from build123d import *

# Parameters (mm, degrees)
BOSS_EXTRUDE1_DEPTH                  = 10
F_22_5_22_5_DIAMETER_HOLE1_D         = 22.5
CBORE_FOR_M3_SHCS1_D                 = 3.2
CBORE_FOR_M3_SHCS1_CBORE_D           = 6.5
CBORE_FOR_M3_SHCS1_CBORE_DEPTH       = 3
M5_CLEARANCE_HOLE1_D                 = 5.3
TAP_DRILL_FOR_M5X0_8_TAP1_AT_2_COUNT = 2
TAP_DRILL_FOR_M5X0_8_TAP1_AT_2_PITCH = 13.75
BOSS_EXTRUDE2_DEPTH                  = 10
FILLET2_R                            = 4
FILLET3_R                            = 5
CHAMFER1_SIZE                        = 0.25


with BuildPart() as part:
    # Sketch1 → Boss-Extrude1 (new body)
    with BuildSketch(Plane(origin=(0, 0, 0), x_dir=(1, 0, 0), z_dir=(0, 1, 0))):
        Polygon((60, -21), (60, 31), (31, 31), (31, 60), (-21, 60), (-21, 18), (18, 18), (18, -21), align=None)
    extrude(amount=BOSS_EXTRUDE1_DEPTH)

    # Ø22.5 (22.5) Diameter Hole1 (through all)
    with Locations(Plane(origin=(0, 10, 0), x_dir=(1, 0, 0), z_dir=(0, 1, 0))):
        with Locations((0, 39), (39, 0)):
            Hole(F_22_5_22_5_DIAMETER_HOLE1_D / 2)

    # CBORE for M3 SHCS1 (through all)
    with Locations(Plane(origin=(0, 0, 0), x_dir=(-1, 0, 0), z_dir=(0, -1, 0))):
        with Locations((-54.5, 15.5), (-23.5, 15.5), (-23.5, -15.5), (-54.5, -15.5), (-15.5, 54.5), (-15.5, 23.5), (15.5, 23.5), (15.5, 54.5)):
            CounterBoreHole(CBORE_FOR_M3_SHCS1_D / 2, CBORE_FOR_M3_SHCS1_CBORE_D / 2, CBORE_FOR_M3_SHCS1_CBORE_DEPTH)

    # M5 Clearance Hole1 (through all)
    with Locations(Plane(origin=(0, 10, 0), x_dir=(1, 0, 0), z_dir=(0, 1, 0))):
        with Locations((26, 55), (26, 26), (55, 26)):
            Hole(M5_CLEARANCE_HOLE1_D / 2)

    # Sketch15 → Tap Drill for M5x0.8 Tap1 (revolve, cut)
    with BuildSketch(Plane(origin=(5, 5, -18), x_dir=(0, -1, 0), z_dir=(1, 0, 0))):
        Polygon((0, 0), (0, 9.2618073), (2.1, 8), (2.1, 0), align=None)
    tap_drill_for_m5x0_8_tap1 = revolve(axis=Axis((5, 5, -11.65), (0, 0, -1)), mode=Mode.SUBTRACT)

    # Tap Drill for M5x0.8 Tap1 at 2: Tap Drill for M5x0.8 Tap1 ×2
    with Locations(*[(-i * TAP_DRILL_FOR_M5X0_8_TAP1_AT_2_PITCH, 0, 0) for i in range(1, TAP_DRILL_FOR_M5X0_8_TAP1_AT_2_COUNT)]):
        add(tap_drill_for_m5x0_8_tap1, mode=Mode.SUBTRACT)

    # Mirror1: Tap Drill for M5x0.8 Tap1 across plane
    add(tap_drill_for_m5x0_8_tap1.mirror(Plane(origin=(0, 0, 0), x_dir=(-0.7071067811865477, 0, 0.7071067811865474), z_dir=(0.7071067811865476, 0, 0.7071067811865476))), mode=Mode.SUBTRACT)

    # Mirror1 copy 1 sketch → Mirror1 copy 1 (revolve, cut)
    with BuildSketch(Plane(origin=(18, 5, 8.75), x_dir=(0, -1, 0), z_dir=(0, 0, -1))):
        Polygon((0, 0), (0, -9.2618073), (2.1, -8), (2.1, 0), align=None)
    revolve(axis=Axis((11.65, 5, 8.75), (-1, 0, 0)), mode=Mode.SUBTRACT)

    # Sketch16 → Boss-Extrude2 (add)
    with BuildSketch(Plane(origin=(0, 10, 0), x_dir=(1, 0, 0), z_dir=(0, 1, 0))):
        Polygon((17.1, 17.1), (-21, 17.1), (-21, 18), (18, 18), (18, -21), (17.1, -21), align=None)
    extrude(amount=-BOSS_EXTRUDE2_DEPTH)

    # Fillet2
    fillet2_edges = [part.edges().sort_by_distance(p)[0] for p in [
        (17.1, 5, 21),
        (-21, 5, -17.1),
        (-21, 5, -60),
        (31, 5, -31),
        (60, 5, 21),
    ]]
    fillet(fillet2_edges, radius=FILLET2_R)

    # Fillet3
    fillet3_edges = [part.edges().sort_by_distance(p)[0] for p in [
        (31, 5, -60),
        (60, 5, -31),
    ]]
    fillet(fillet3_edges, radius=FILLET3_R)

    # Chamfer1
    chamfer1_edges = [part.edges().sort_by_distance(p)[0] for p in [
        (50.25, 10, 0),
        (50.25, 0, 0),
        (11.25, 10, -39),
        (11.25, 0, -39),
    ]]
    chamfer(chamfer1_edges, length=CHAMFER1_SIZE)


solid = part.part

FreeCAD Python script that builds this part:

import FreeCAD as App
import Part
import Sketcher
from FreeCAD import Vector
Q = App.Units.Quantity


def edges_at(feature, points):
    """Names of the edges that pass closest to the given points."""
    edges = feature.Shape.Edges
    near = lambda p: min(range(len(edges)), key=lambda i: edges[i].distToShape(Part.Vertex(*p))[0])
    return sorted({f"Edge{near(p) + 1}" for p in points})

doc = App.newDocument("Part")
body = doc.addObject("PartDesign::Body", "Body")

# Sketch on XZ plane
sketch1 = doc.addObject("Sketcher::SketchObject", "Sketch")
body.addObject(sketch1)
sketch1.AttachmentSupport = (doc.XZ_Plane, [""])
sketch1.MapMode = "FlatFace"
sketch1.addGeometry([
    Part.LineSegment(Vector(60, 21, 0), Vector(60, -31, 0)),  # 0
    Part.LineSegment(Vector(60, -31, 0), Vector(31, -31, 0)),  # 1
    Part.LineSegment(Vector(31, -31, 0), Vector(31, -60, 0)),  # 2
    Part.LineSegment(Vector(31, -60, 0), Vector(-21, -60, 0)),  # 3
    Part.LineSegment(Vector(-21, -60, 0), Vector(-21, -18, 0)),  # 4
    Part.LineSegment(Vector(-21, -18, 0), Vector(18, -18, 0)),  # 5
    Part.LineSegment(Vector(18, -18, 0), Vector(18, 21, 0)),  # 6
    Part.LineSegment(Vector(18, 21, 0), Vector(60, 21, 0)),  # 7
], False)
sketch1.addConstraint([
    Sketcher.Constraint("Coincident", 0, 2, 1, 1),
    Sketcher.Constraint("Coincident", 1, 2, 2, 1),
    Sketcher.Constraint("Coincident", 2, 2, 3, 1),
    Sketcher.Constraint("Coincident", 3, 2, 4, 1),
    Sketcher.Constraint("Coincident", 4, 2, 5, 1),
    Sketcher.Constraint("Coincident", 5, 2, 6, 1),
    Sketcher.Constraint("Coincident", 6, 2, 7, 1),
    Sketcher.Constraint("Coincident", 7, 2, 0, 1),
    Sketcher.Constraint("Vertical", 0),
    Sketcher.Constraint("Horizontal", 1),
    Sketcher.Constraint("Vertical", 2),
    Sketcher.Constraint("Horizontal", 3),
    Sketcher.Constraint("Vertical", 4),
    Sketcher.Constraint("Horizontal", 5),
    Sketcher.Constraint("Vertical", 6),
    Sketcher.Constraint("Horizontal", 7),
    Sketcher.Constraint("Equal", 3, 0),
    Sketcher.Constraint("Equal", 1, 2),
    Sketcher.Constraint("Equal", 7, 4),
    Sketcher.Constraint("DistanceX", 1, 2, 1, 1, 29.0),
    Sketcher.Constraint("DistanceX", 3, 2, 3, 1, 52.0),
    Sketcher.Constraint("DistanceX", 5, 1, 5, 2, 39.0),
    Sketcher.Constraint("DistanceX", -1, 1, 0, 2, 60.0),
    Sketcher.Constraint("DistanceY", 0, 2, -1, 1, 31.0),
])
pad1 = doc.addObject("PartDesign::Pad", "Pad")
body.addObject(pad1)
pad1.Profile = sketch1
pad1.Length = 10
pad1.Reversed = True

# Sketch on XZ plane
sketch2 = doc.addObject("Sketcher::SketchObject", "Sketch001")
body.addObject(sketch2)
sketch2.AttachmentSupport = (doc.XZ_Plane, [""])
sketch2.MapMode = "FlatFace"
sketch2.AttachmentOffset = App.Placement(Vector(0, 0, -10), App.Rotation())
sketch2.addGeometry([
    Part.Circle(Vector(0, -39, 0), Vector(0, 0, 1), 11),
    Part.Circle(Vector(39, 0, 0), Vector(0, 0, 1), 11),
], False)
sketch2.addConstraint([
    Sketcher.Constraint("Equal", 0, 1),
    Sketcher.Constraint("PointOnObject", 0, 3, -2),
    Sketcher.Constraint("PointOnObject", 1, 3, -1),
    Sketcher.Constraint("Diameter", 0, 22.5),
    Sketcher.Constraint("DistanceY", 0, 3, -1, 1, 39.0),
    Sketcher.Constraint("DistanceX", -1, 1, 1, 3, 39.0),
])
doc.recompute()
hole = doc.addObject("PartDesign::Hole", "Hole")
body.addObject(hole)
hole.Profile = sketch2
hole.ThreadType = "None"
hole.Diameter = 22.5
hole.DepthType = "ThroughAll"
hole.Reversed = True

# Sketch on XZ plane
sketch3 = doc.addObject("Sketcher::SketchObject", "Sketch002")
body.addObject(sketch3)
sketch3.AttachmentSupport = (doc.XZ_Plane, [""])
sketch3.MapMode = "FlatFace"
sketch3.addGeometry([
    Part.Circle(Vector(54.5, -15.5, 0), Vector(0, 0, 1), 1.6),  # 0
    Part.Circle(Vector(23.5, -15.5, 0), Vector(0, 0, 1), 1.6),  # 1
    Part.Circle(Vector(23.5, 15.5, 0), Vector(0, 0, 1), 1.6),  # 2
    Part.Circle(Vector(54.5, 15.5, 0), Vector(0, 0, 1), 1.6),  # 3
    Part.Circle(Vector(15.5, -54.5, 0), Vector(0, 0, 1), 1.6),  # 4
    Part.Circle(Vector(15.5, -23.5, 0), Vector(0, 0, 1), 1.6),  # 5
    Part.Circle(Vector(-15.5, -23.5, 0), Vector(0, 0, 1), 1.6),  # 6
    Part.Circle(Vector(-15.5, -54.5, 0), Vector(0, 0, 1), 1.6),  # 7
], False)
sketch3.addConstraint([
    Sketcher.Constraint("Equal", 0, 1),
    Sketcher.Constraint("Equal", 1, 2),
    Sketcher.Constraint("Equal", 2, 3),
    Sketcher.Constraint("Equal", 3, 4),
    Sketcher.Constraint("Equal", 4, 5),
    Sketcher.Constraint("Equal", 5, 6),
    Sketcher.Constraint("Equal", 6, 7),
    Sketcher.Constraint("Symmetric", 5, 3, 6, 3, -2),
    Sketcher.Constraint("Symmetric", 4, 3, 7, 3, -2),
    Sketcher.Constraint("Symmetric", 1, 3, 2, 3, -1),
    Sketcher.Constraint("Symmetric", 0, 3, 3, 3, -1),
    Sketcher.Constraint("Horizontal", 0, 3, 1, 3),
    Sketcher.Constraint("Vertical", 4, 3, 5, 3),
    Sketcher.Constraint("Diameter", 0, 3.2),
    Sketcher.Constraint("DistanceX", 1, 3, 0, 3, 31.0),
    Sketcher.Constraint("DistanceY", 1, 3, 2, 3, 31.0),
    Sketcher.Constraint("DistanceX", 4, 3, 1, 3, 8.0),
    Sketcher.Constraint("DistanceY", 4, 3, 1, 3, 39.0),
    Sketcher.Constraint("DistanceY", 5, 3, 1, 3, 8.0),
    Sketcher.Constraint("DistanceX", 6, 3, 5, 3, 31.0),
])
doc.recompute()
hole2 = doc.addObject("PartDesign::Hole", "Hole001")
body.addObject(hole2)
hole2.Profile = sketch3
hole2.ThreadType = "None"
hole2.Diameter = 3.2
hole2.DepthType = "ThroughAll"
hole2.HoleCutType = "Counterbore"
hole2.HoleCutDiameter = 6.5
hole2.HoleCutDepth = 3

# Sketch on XZ plane
sketch4 = doc.addObject("Sketcher::SketchObject", "Sketch003")
body.addObject(sketch4)
sketch4.AttachmentSupport = (doc.XZ_Plane, [""])
sketch4.MapMode = "FlatFace"
sketch4.AttachmentOffset = App.Placement(Vector(0, 0, -10), App.Rotation())
sketch4.addGeometry([
    Part.Circle(Vector(26, -55, 0), Vector(0, 0, 1), 2.6),
    Part.Circle(Vector(26, -26, 0), Vector(0, 0, 1), 2.6),
    Part.Circle(Vector(55, -26, 0), Vector(0, 0, 1), 2.6),
], False)
sketch4.addConstraint([
    Sketcher.Constraint("Equal", 0, 1),
    Sketcher.Constraint("Equal", 1, 2),
    Sketcher.Constraint("Horizontal", 1, 3, 2, 3),
    Sketcher.Constraint("Vertical", 0, 3, 1, 3),
    Sketcher.Constraint("Diameter", 0, 5.3),
    Sketcher.Constraint("DistanceX", -1, 1, 0, 3, 26.0),
    Sketcher.Constraint("DistanceY", 0, 3, -1, 1, 55.0),
    Sketcher.Constraint("DistanceY", 1, 3, -1, 1, 26.0),
    Sketcher.Constraint("DistanceX", -1, 1, 2, 3, 55.0),
])
doc.recompute()
hole3 = doc.addObject("PartDesign::Hole", "Hole002")
body.addObject(hole3)
hole3.Profile = sketch4
hole3.ThreadType = "None"
hole3.Diameter = 5.3
hole3.DepthType = "ThroughAll"
hole3.Reversed = True

# Sketch on YZ plane
sketch5 = doc.addObject("Sketcher::SketchObject", "Sketch004")
body.addObject(sketch5)
sketch5.AttachmentSupport = (doc.YZ_Plane, [""])
sketch5.MapMode = "FlatFace"
sketch5.AttachmentOffset = App.Placement(Vector(0, 0, 5), App.Rotation())
sketch5.addGeometry([
    Part.LineSegment(Vector(5, -27.3, 0), Vector(5, -18, 0)),
    Part.LineSegment(Vector(5, -18, 0), Vector(2.9, -18, 0)),
    Part.LineSegment(Vector(2.9, -18, 0), Vector(2.9, -26, 0)),
    Part.LineSegment(Vector(2.9, -26, 0), Vector(5, -27.3, 0)),
], False)
sketch5.addGeometry(Part.LineSegment(Vector(5, -18, 0), Vector(5, -27.3, 0)), True)  # axis
sketch5.addConstraint([
    Sketcher.Constraint("Coincident", 0, 2, 1, 1),
    Sketcher.Constraint("Coincident", 1, 2, 2, 1),
    Sketcher.Constraint("Coincident", 2, 2, 3, 1),
    Sketcher.Constraint("Coincident", 3, 2, 0, 1),
    Sketcher.Constraint("Vertical", 0),
    Sketcher.Constraint("Horizontal", 1),
    Sketcher.Constraint("Vertical", 2),
    Sketcher.Constraint("Vertical", 4),
    Sketcher.Constraint("Coincident", 4, 1, 0, 2),
    Sketcher.Constraint("Equal", 0, 4),
    Sketcher.Constraint("DistanceY", 2, 2, 2, 1, 8.0),
    Sketcher.Constraint("Angle", 3, Q("-31 deg")),
    Sketcher.Constraint("DistanceX", 1, 2, 1, 1, 2.1),
    Sketcher.Constraint("DistanceX", -1, 1, 0, 2, 5.0),
    Sketcher.Constraint("DistanceY", 0, 2, -1, 1, 18.0),
])
groove = doc.addObject("PartDesign::Groove", "Groove")
body.addObject(groove)
groove.Profile = sketch5
groove.ReferenceAxis = (sketch5, ["Axis0"])
groove.Angle = 360
doc.recompute()

linearpattern = doc.addObject("PartDesign::LinearPattern", "LinearPattern")
body.addObject(linearpattern)
linearpattern.Originals = [groove]
linearpattern.Direction = (doc.X_Axis, [""])
linearpattern.Mode = "offset"
linearpattern.Offset = 13.75
linearpattern.Occurrences = 2
linearpattern.Reversed = True
body.Tip = linearpattern
doc.recompute()

datumplane = doc.addObject("PartDesign::Plane", "DatumPlane")
body.addObject(datumplane)
datumplane.Placement = App.Placement(Vector(0, 0, 0), App.Rotation(Vector(-0.707106781, 0, 0.707106781), Vector(0, -1, 0), Vector(0.707106781, 0, 0.707106781), "ZXY"))
mirrored = doc.addObject("PartDesign::Mirrored", "Mirrored")
body.addObject(mirrored)
mirrored.Originals = [groove]
mirrored.MirrorPlane = (datumplane, [""])
body.Tip = mirrored

# Sketch on XY plane
sketch6 = doc.addObject("Sketcher::SketchObject", "Sketch005")
body.addObject(sketch6)
sketch6.AttachmentSupport = (doc.XY_Plane, [""])
sketch6.MapMode = "FlatFace"
sketch6.AttachmentOffset = App.Placement(Vector(0, 0, 8.75), App.Rotation())
sketch6.addGeometry([
    Part.LineSegment(Vector(18, 5, 0), Vector(27.3, 5, 0)),
    Part.LineSegment(Vector(27.3, 5, 0), Vector(26, 2.9, 0)),
    Part.LineSegment(Vector(26, 2.9, 0), Vector(18, 2.9, 0)),
    Part.LineSegment(Vector(18, 2.9, 0), Vector(18, 5, 0)),
], False)
sketch6.addGeometry(Part.LineSegment(Vector(27.3, 5, 0), Vector(18, 5, 0)), True)  # axis
sketch6.addConstraint([
    Sketcher.Constraint("Coincident", 0, 2, 1, 1),
    Sketcher.Constraint("Coincident", 1, 2, 2, 1),
    Sketcher.Constraint("Coincident", 2, 2, 3, 1),
    Sketcher.Constraint("Coincident", 3, 2, 0, 1),
    Sketcher.Constraint("Horizontal", 0),
    Sketcher.Constraint("Horizontal", 2),
    Sketcher.Constraint("Vertical", 3),
    Sketcher.Constraint("Horizontal", 4),
    Sketcher.Constraint("Coincident", 4, 1, 0, 2),
    Sketcher.Constraint("Vertical", 2, 2, 4, 2),
    Sketcher.Constraint("DistanceX", 2, 2, 2, 1, 8.0),
    Sketcher.Constraint("Angle", 1, Q("-121 deg")),
    Sketcher.Constraint("DistanceY", 3, 1, 3, 2, 2.1),
    Sketcher.Constraint("DistanceY", -1, 1, 0, 2, 5.0),
    Sketcher.Constraint("DistanceX", -1, 1, 1, 2, 26.0),
])
groove2 = doc.addObject("PartDesign::Groove", "Groove001")
body.addObject(groove2)
groove2.Profile = sketch6
groove2.ReferenceAxis = (sketch6, ["Axis0"])
groove2.Angle = 360

# Sketch on XZ plane
sketch7 = doc.addObject("Sketcher::SketchObject", "Sketch006")
body.addObject(sketch7)
sketch7.AttachmentSupport = (doc.XZ_Plane, [""])
sketch7.MapMode = "FlatFace"
sketch7.AttachmentOffset = App.Placement(Vector(0, 0, -10), App.Rotation())
sketch7.addGeometry([
    Part.LineSegment(Vector(-21, -17.1, 0), Vector(17.1, -17.1, 0)),  # 0
    Part.LineSegment(Vector(17.1, -17.1, 0), Vector(17.1, 21, 0)),  # 1
    Part.LineSegment(Vector(17.1, 21, 0), Vector(18, 21, 0)),  # 2
    Part.LineSegment(Vector(18, 21, 0), Vector(18, -18, 0)),  # 3
    Part.LineSegment(Vector(18, -18, 0), Vector(-21, -18, 0)),  # 4
    Part.LineSegment(Vector(-21, -18, 0), Vector(-21, -17.1, 0)),  # 5
], False)
sketch7.addConstraint([
    Sketcher.Constraint("Coincident", 0, 2, 1, 1),
    Sketcher.Constraint("Coincident", 1, 2, 2, 1),
    Sketcher.Constraint("Coincident", 2, 2, 3, 1),
    Sketcher.Constraint("Coincident", 3, 2, 4, 1),
    Sketcher.Constraint("Coincident", 4, 2, 5, 1),
    Sketcher.Constraint("Coincident", 5, 2, 0, 1),
    Sketcher.Constraint("Horizontal", 0),
    Sketcher.Constraint("Vertical", 1),
    Sketcher.Constraint("Horizontal", 2),
    Sketcher.Constraint("Vertical", 3),
    Sketcher.Constraint("Horizontal", 4),
    Sketcher.Constraint("Vertical", 5),
    Sketcher.Constraint("Equal", 0, 1),
    Sketcher.Constraint("Equal", 4, 3),
    Sketcher.Constraint("DistanceX", 4, 2, 4, 1, 39.0),
    Sketcher.Constraint("DistanceX", 0, 1, 0, 2, 38.1),
    Sketcher.Constraint("DistanceY", -1, 1, 1, 2, 21.0),
    Sketcher.Constraint("DistanceX", -1, 1, 2, 2, 18.0),
])
pad2 = doc.addObject("PartDesign::Pad", "Pad001")
body.addObject(pad2)
pad2.Profile = sketch7
pad2.Length = 10
doc.recompute()

fillet = doc.addObject("PartDesign::Fillet", "Fillet")
body.addObject(fillet)
fillet.Base = (pad2, edges_at(pad2, [
    (17.1, 5, 21),
    (-21, 5, -17.1),
    (-21, 5, -60),
    (31, 5, -31),
    (60, 5, 21),
]))
fillet.Radius = 4
doc.recompute()

fillet2 = doc.addObject("PartDesign::Fillet", "Fillet001")
body.addObject(fillet2)
fillet2.Base = (fillet, edges_at(fillet, [(31, 5, -60), (60, 5, -31)]))
fillet2.Radius = 5
doc.recompute()

chamfer = doc.addObject("PartDesign::Chamfer", "Chamfer")
body.addObject(chamfer)
chamfer.Base = (fillet2, edges_at(fillet2, [
    (50.25, 10, 0),
    (50.25, 0, 0),
    (11.25, 10, -39),
    (11.25, 0, -39),
]))
chamfer.Size = 0.25

doc.recompute()
